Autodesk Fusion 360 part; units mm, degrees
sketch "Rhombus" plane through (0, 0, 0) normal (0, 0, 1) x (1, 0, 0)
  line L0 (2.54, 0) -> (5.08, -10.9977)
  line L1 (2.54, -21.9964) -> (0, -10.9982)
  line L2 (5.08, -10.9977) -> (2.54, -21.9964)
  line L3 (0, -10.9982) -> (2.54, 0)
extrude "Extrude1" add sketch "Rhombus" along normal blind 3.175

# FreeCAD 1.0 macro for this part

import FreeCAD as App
import Part
import Sketcher

V = App.Vector
Q = App.Units.Quantity

doc = App.newDocument("Part")
body = doc.addObject("PartDesign::Body", "Body")

sketch1 = body.newObject("Sketcher::SketchObject", "Sketch")
sketch1.AttachmentSupport = (doc.getObject("XY_Plane"), [""])
sketch1.MapMode = "FlatFace"
sketch1.addGeometry([
    Part.LineSegment(V(5.08, -10.9977, 0), V(2.54, 0, 0)),
    Part.LineSegment(V(2.54, 0, 0), V(0, -10.9982, 0)),
    Part.LineSegment(V(0, -10.9982, 0), V(2.54, -21.9964, 0)),
    Part.LineSegment(V(2.54, -21.9964, 0), V(5.08, -10.9977, 0)),
], False)
sketch1.addConstraint([
    Sketcher.Constraint("Coincident", 0, 2, 1, 1),
    Sketcher.Constraint("Coincident", 1, 2, 2, 1),
    Sketcher.Constraint("Coincident", 2, 2, 3, 1),
    Sketcher.Constraint("Coincident", 3, 2, 0, 1),
    Sketcher.Constraint("PointOnObject", 0, 2, -1),
    Sketcher.Constraint("PointOnObject", 1, 2, -2),
    Sketcher.Constraint("Parallel", 0, 2),
    Sketcher.Constraint("Parallel", 1, 3),
    Sketcher.Constraint("Vertical", 0, 2, 2, 2),
    Sketcher.Constraint("Equal", 1, 2),
    Sketcher.Constraint("DistanceX", -1, 1, 0, 2, Q("0.1 in")),
    Sketcher.Constraint("DistanceY", 1, 2, -1, 1, Q("0.433 in")),
])
pad1 = body.newObject("PartDesign::Pad", "Pad")
pad1.Profile = sketch1
pad1.Length = Q("0.125 in")

doc.recompute()
